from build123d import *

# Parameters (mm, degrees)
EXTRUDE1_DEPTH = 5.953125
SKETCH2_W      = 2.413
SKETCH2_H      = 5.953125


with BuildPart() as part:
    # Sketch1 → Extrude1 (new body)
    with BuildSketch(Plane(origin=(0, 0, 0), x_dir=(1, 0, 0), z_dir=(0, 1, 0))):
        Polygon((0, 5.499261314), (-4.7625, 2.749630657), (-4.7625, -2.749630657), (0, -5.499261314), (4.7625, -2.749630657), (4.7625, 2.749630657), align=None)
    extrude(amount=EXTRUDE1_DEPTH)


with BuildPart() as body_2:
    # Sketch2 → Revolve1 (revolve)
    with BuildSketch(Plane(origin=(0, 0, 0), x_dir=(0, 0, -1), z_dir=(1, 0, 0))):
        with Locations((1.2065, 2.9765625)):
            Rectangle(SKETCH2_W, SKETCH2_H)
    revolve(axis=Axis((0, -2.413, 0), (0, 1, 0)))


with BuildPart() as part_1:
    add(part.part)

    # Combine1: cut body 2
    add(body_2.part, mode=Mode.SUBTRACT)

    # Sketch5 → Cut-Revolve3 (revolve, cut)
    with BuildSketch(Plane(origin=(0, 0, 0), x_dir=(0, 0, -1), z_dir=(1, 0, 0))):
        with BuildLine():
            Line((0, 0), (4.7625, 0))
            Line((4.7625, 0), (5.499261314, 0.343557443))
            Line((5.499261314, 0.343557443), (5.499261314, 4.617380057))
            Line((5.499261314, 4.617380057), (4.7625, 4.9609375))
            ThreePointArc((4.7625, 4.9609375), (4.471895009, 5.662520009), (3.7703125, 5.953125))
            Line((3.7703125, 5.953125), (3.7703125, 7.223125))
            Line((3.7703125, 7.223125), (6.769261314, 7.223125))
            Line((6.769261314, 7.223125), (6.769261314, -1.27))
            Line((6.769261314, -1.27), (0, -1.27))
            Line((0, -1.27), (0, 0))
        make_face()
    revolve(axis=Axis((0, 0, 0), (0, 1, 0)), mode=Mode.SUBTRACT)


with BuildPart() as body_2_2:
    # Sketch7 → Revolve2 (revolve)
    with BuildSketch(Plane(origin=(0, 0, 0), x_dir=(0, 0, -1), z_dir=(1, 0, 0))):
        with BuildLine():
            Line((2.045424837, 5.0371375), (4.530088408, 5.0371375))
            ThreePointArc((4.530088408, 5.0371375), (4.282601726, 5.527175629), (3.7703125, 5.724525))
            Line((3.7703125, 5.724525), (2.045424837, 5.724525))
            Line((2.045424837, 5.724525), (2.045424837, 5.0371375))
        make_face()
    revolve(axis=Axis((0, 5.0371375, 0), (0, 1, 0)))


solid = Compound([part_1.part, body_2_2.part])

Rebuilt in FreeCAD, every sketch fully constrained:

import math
import FreeCAD as App
import Part
import Sketcher
from FreeCAD import Vector
Q = App.Units.Quantity


def add_polygon(sketch, points):
    """Adds a closed chain of lines whose ends are joined by coincident constraints."""
    first, n = sketch.GeometryCount, len(points)
    for a, b in zip(points, points[1:] + points[:1]):
        sketch.addGeometry(Part.LineSegment(App.Vector(*a, 0), App.Vector(*b, 0)), False)
    for i in range(n):
        sketch.addConstraint(Sketcher.Constraint("Coincident", first + i, 2, first + (i + 1) % n, 1))

doc = App.newDocument("Part")
body = doc.addObject("PartDesign::Body", "Body")

# Sketch on XZ plane
sketch1 = body.newObject("Sketcher::SketchObject", "Sketch")
sketch1.AttachmentSupport = (doc.getObject("XZ_Plane"), [""])
sketch1.MapMode = "FlatFace"
add_polygon(sketch1, [(0, -5), (-5, -3), (-5, 3), (0, 5), (5, 3), (5, -3)])  # lines 0-5
sketch1.addConstraint([
    Sketcher.Constraint("Vertical", 1),
    Sketcher.Constraint("Vertical", 4),
    Sketcher.Constraint("Symmetric", 0, 2, 3, 2, -1, 1),
    Sketcher.Constraint("Symmetric", 2, 2, 5, 2, -1, 1),
    Sketcher.Constraint("PointOnObject", 2, 2, -2),
    Sketcher.Constraint("Parallel", 2, 5),
    Sketcher.Constraint("Horizontal", 1, 2, 3, 2),
    Sketcher.Constraint("Angle", 0, Q("150 deg")),
    Sketcher.Constraint("DistanceX", 0, 2, -1, 1, Q("0.1875 in")),
    Sketcher.Constraint("DistanceY", 1, 1, 1, 2, 5.499261),
])
pad1 = body.newObject("PartDesign::Pad", "Pad")
pad1.Profile = sketch1
pad1.Length = Q("0.234375 in")
pad1.Reversed = True
body2 = doc.addObject("PartDesign::Body", "Body001")

# Sketch on YZ plane
sketch2 = body2.newObject("Sketcher::SketchObject", "Sketch001")
sketch2.AttachmentSupport = (doc.getObject("YZ_Plane001"), [""])
sketch2.MapMode = "FlatFace"
add_polygon(sketch2, [(6, 0), (0, 0), (0, -2.4), (6, -2.4)])  # lines 0-3
sketch2.addConstraint([
    Sketcher.Constraint("Horizontal", 0),
    Sketcher.Constraint("Vertical", 1),
    Sketcher.Constraint("Horizontal", 2),
    Sketcher.Constraint("Vertical", 3),
    Sketcher.Constraint("Coincident", 0, 2, -1, 1),
    Sketcher.Constraint("DistanceX", 0, 2, 0, 1, Q("0.234375 in")),
    Sketcher.Constraint("DistanceY", 1, 2, 1, 1, Q("0.095 in")),
])
revolution = body2.newObject("PartDesign::Revolution", "Revolution")
revolution.Profile = sketch2
revolution.ReferenceAxis = (sketch2, ["H_Axis"])
revolution.Angle = 360
doc.recompute()

boolean = body.newObject("PartDesign::Boolean", "Boolean")
boolean.Type = "Cut"
boolean.addObjects([body2])

# Sketch on YZ plane
sketch3 = body.newObject("Sketcher::SketchObject", "Sketch002")
sketch3.AttachmentSupport = (doc.getObject("YZ_Plane"), [""])
sketch3.MapMode = "FlatFace"
sketch3.addGeometry([
    Part.LineSegment(Vector(0, -4.8, 0), Vector(0, 0, 0)),  # 0
    Part.LineSegment(Vector(0, 0, 0), Vector(-1.3, 0, 0)),  # 1
    Part.LineSegment(Vector(-1.3, 0, 0), Vector(-1.3, -6.8, 0)),  # 2
    Part.LineSegment(Vector(-1.3, -6.8, 0), Vector(7.2, -6.8, 0)),  # 3
    Part.LineSegment(Vector(7.2, -6.8, 0), Vector(7.2, -3.8, 0)),  # 4
    Part.LineSegment(Vector(7.2, -3.8, 0), Vector(6, -3.8, 0)),  # 5
    Part.ArcOfCircle(Part.Circle(Vector(5, -3.8, 0), Vector(0, 0, 1), 1), math.radians(-90), math.radians(0)),  # 6
    Part.LineSegment(Vector(5, -4.8, 0), Vector(4.6, -5.5, 0)),  # 7
    Part.LineSegment(Vector(4.6, -5.5, 0), Vector(0.3, -5.5, 0)),  # 8
    Part.LineSegment(Vector(0.3, -5.5, 0), Vector(0, -4.8, 0)),  # 9
], False)
sketch3.addConstraint([
    Sketcher.Constraint("Coincident", 0, 2, 1, 1),
    Sketcher.Constraint("Coincident", 1, 2, 2, 1),
    Sketcher.Constraint("Coincident", 2, 2, 3, 1),
    Sketcher.Constraint("Coincident", 3, 2, 4, 1),
    Sketcher.Constraint("Coincident", 4, 2, 5, 1),
    Sketcher.Constraint("Coincident", 5, 2, 6, 2),
    Sketcher.Constraint("Coincident", 6, 1, 7, 1),
    Sketcher.Constraint("Coincident", 7, 2, 8, 1),
    Sketcher.Constraint("Coincident", 8, 2, 9, 1),
    Sketcher.Constraint("Coincident", 9, 2, 0, 1),
    Sketcher.Constraint("Vertical", 0),
    Sketcher.Constraint("Horizontal", 1),
    Sketcher.Constraint("Vertical", 2),
    Sketcher.Constraint("Horizontal", 3),
    Sketcher.Constraint("Vertical", 4),
    Sketcher.Constraint("Horizontal", 5),
    Sketcher.Constraint("Horizontal", 8),
    Sketcher.Constraint("Coincident", 0, 2, -1, 1),
    Sketcher.Constraint("Horizontal", 6, 3, 4, 2),
    Sketcher.Constraint("Horizontal", 6, 1, 9, 2),
    Sketcher.Constraint("Equal", 1, 5),
    Sketcher.Constraint("Equal", 7, 9),
    Sketcher.Constraint("Angle", 7, Q("-115 deg")),
    Sketcher.Constraint("DistanceX", 1, 2, 1, 1, Q("0.05 in")),
    Sketcher.Constraint("DistanceY", 0, 1, 0, 2, Q("0.1875 in")),
    Sketcher.Constraint("DistanceY", 3, 2, 7, 2, Q("0.05 in")),
    Sketcher.Constraint("DistanceX", -1, 1, 5, 2, Q("0.234375 in")),
    Sketcher.Constraint("Radius", 6, 0.992188),
    Sketcher.Constraint("DistanceY", 2, 2, 2, 1, 6.769261),
    Sketcher.Constraint("DistanceX", 8, 2, 8, 1, 4.273823),
])
groove = body.newObject("PartDesign::Groove", "Groove")
groove.Profile = sketch3
groove.ReferenceAxis = (sketch3, ["H_Axis"])
groove.Angle = 360
body3 = doc.addObject("PartDesign::Body", "Body002")

# Sketch on YZ plane
sketch4 = body3.newObject("Sketcher::SketchObject", "Sketch003")
sketch4.AttachmentSupport = (doc.getObject("YZ_Plane002"), [""])
sketch4.MapMode = "FlatFace"
sketch4.addGeometry([
    Part.LineSegment(Vector(5, -2, 0), Vector(5, -4.5, 0)),
    Part.ArcOfCircle(Part.Circle(Vector(5, -3.8, 0), Vector(0, 0, 1), 0.8), math.radians(-84), math.radians(0)),
    Part.LineSegment(Vector(5.7, -3.8, 0), Vector(5.7, -2, 0)),
    Part.LineSegment(Vector(5.7, -2, 0), Vector(5, -2, 0)),
], False)
sketch4.addConstraint([
    Sketcher.Constraint("Coincident", 0, 2, 1, 1),
    Sketcher.Constraint("Tangent", 1, 2, 2, 1),
    Sketcher.Constraint("Coincident", 2, 2, 3, 1),
    Sketcher.Constraint("Coincident", 3, 2, 0, 1),
    Sketcher.Constraint("Vertical", 0),
    Sketcher.Constraint("Vertical", 2),
    Sketcher.Constraint("Horizontal", 3),
    Sketcher.Constraint("DistanceX", 1, 3, 0, 2, Q("0.003 in")),
    Sketcher.Constraint("Radius", 1, 0.763588),
    Sketcher.Constraint("DistanceY", 0, 2, 0, 1, 2.484664),
    Sketcher.Constraint("DistanceY", 0, 2, -1, 1, 4.530088),
    Sketcher.Constraint("DistanceX", -1, 1, 1, 3, 4.960937),
])
revolution2 = body3.newObject("PartDesign::Revolution", "Revolution001")
revolution2.Profile = sketch4
revolution2.ReferenceAxis = (sketch4, ["H_Axis"])
revolution2.Angle = 360

doc.recompute()
